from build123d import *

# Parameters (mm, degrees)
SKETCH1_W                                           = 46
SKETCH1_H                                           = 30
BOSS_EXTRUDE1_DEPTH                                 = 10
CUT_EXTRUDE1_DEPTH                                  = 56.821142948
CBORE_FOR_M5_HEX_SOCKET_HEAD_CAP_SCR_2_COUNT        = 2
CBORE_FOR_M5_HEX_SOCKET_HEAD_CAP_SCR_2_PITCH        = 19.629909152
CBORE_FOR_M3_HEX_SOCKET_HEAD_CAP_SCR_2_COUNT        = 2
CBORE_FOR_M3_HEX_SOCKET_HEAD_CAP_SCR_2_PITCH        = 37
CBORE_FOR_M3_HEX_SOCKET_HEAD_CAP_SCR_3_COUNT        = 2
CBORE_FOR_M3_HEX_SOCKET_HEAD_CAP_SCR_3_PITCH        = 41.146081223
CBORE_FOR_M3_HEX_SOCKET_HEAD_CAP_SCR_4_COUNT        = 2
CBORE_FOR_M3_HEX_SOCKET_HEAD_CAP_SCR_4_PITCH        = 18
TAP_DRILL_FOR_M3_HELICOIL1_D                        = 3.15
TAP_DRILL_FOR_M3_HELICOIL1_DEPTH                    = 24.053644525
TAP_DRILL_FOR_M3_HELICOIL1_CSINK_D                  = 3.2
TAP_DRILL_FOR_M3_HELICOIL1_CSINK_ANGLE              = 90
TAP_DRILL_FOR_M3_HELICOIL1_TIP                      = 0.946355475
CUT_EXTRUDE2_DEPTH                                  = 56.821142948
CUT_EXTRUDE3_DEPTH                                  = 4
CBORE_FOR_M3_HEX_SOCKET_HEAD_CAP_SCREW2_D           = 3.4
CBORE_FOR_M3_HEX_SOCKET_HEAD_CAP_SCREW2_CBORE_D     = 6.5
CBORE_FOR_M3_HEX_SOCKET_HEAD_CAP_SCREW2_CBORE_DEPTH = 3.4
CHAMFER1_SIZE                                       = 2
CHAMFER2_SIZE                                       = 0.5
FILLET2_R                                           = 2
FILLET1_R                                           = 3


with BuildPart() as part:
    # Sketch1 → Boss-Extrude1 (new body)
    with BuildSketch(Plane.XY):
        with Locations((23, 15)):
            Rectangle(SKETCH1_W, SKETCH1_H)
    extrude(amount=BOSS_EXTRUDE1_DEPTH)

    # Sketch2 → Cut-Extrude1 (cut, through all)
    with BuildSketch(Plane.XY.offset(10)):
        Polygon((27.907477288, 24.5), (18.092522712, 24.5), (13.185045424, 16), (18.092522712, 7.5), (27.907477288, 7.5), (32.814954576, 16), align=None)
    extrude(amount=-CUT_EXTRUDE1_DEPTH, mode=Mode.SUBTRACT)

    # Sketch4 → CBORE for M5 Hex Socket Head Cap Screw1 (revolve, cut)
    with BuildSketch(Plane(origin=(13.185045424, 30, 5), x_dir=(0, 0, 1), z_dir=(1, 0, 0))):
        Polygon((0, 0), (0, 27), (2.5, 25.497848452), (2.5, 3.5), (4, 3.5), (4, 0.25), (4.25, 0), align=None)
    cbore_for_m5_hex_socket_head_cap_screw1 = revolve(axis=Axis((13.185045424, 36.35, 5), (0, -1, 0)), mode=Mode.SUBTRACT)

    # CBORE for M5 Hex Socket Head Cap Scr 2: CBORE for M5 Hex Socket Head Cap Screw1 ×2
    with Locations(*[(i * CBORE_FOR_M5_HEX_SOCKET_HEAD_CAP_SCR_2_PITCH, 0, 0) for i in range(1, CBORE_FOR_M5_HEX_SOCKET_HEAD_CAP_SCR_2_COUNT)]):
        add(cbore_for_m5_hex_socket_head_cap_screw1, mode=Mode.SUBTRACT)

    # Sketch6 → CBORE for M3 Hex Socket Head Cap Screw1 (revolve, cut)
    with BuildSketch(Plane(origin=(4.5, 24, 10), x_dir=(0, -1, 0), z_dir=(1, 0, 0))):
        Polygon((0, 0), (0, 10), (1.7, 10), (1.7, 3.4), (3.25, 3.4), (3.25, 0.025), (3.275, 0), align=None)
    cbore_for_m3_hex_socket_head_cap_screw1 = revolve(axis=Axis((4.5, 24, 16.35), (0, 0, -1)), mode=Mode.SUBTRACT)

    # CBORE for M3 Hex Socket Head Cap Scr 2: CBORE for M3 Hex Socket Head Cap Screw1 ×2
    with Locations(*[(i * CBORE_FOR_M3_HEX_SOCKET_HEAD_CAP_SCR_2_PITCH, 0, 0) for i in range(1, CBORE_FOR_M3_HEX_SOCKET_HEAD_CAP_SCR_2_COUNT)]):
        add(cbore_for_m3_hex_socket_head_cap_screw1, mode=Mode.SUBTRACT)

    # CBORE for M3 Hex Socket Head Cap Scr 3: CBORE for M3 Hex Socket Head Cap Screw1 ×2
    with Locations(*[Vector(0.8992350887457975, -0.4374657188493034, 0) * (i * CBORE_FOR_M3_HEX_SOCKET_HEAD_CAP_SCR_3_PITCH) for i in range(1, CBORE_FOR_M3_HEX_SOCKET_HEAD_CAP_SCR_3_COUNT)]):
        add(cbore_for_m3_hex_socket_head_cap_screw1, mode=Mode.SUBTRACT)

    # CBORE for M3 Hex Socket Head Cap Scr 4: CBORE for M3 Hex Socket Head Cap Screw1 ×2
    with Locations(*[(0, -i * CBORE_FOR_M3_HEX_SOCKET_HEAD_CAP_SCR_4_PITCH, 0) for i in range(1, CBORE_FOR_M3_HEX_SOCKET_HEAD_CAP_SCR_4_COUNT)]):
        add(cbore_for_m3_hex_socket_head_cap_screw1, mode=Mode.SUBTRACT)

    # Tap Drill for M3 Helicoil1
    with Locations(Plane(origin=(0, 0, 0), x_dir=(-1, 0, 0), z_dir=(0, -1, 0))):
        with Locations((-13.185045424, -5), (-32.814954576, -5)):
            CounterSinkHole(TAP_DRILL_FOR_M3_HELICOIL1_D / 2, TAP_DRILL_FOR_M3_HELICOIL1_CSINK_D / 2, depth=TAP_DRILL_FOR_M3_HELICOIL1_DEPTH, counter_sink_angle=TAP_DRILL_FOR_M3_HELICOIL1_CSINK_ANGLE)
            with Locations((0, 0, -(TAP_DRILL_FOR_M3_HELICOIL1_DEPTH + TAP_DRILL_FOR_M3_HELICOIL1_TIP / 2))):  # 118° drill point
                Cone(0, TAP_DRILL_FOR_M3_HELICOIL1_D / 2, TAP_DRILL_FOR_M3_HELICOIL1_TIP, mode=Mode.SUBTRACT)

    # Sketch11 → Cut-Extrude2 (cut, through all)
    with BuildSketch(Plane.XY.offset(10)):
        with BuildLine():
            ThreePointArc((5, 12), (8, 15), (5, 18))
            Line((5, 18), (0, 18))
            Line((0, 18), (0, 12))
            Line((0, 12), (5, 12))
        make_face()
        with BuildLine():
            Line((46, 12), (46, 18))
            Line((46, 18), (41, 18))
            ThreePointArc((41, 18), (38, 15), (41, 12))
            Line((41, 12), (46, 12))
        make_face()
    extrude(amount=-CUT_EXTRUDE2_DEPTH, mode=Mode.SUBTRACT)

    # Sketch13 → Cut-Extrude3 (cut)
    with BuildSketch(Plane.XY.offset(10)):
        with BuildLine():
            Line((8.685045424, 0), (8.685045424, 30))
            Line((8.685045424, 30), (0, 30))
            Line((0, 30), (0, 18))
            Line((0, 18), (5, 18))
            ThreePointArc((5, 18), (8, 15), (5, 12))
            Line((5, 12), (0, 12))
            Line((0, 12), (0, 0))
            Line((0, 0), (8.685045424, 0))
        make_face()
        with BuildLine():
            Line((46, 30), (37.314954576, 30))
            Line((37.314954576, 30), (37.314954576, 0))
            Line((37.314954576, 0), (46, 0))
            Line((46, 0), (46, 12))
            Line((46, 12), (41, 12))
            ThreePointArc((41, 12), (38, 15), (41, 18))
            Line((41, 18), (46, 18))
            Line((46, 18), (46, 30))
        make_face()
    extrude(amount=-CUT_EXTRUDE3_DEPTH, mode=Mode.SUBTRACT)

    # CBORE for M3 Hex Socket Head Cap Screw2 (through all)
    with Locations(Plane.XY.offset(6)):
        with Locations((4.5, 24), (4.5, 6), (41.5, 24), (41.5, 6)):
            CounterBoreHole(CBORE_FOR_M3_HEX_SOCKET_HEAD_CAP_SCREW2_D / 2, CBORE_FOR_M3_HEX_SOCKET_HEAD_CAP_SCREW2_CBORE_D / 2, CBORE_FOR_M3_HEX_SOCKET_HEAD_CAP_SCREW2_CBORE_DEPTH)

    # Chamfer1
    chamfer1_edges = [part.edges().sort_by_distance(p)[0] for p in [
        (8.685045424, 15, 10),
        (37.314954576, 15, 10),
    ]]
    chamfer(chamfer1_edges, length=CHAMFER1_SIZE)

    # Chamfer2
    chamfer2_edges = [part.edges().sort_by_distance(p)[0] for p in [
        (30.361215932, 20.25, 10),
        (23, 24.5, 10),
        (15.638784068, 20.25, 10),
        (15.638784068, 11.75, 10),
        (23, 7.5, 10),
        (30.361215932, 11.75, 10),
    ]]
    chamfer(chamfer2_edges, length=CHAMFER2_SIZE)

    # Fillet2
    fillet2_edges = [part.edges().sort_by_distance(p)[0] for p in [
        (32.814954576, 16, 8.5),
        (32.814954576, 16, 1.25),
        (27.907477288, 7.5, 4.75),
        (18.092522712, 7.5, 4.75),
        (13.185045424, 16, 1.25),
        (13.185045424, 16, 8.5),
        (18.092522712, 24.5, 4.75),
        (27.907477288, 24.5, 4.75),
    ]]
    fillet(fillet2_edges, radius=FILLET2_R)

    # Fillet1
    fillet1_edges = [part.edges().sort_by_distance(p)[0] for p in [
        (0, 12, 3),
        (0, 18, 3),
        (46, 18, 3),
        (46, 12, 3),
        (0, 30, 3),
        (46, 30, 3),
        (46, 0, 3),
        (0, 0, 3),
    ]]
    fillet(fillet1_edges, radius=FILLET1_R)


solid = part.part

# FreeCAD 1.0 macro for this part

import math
import FreeCAD as App
import Part
import Sketcher

V = App.Vector
Q = App.Units.Quantity


def edges_at(feature, points):
    """Names of the edges that pass closest to the given points."""
    edges = feature.Shape.Edges
    near = lambda p: min(range(len(edges)), key=lambda i: edges[i].distToShape(Part.Vertex(*p))[0])
    return sorted({f"Edge{near(p) + 1}" for p in points})


def add_polygon(sketch, points):
    """Adds a closed chain of lines whose ends are joined by coincident constraints."""
    first, n = sketch.GeometryCount, len(points)
    for a, b in zip(points, points[1:] + points[:1]):
        sketch.addGeometry(Part.LineSegment(App.Vector(*a, 0), App.Vector(*b, 0)), False)
    for i in range(n):
        sketch.addConstraint(Sketcher.Constraint("Coincident", first + i, 2, first + (i + 1) % n, 1))

doc = App.newDocument("Part")
body = doc.addObject("PartDesign::Body", "Body")

sketch1 = body.newObject("Sketcher::SketchObject", "Sketch")
sketch1.AttachmentSupport = (doc.getObject("XY_Plane"), [""])
sketch1.MapMode = "FlatFace"
add_polygon(sketch1, [(0, 30), (0, 0), (46, 0), (46, 30)])
sketch1.addConstraint([
    Sketcher.Constraint("Vertical", 0),
    Sketcher.Constraint("Horizontal", 1),
    Sketcher.Constraint("Vertical", 2),
    Sketcher.Constraint("Horizontal", 3),
    Sketcher.Constraint("Coincident", 0, 2, -1, 1),
    Sketcher.Constraint("DistanceX", 1, 1, 1, 2, Q("46 mm")),
    Sketcher.Constraint("DistanceY", 0, 2, 0, 1, Q("30 mm")),
])
pad1 = body.newObject("PartDesign::Pad", "Pad")
pad1.Profile = sketch1
pad1.Length = 10

sketch2 = body.newObject("Sketcher::SketchObject", "Sketch001")
sketch2.AttachmentSupport = (doc.getObject("XY_Plane"), [""])
sketch2.MapMode = "FlatFace"
sketch2.AttachmentOffset = App.Placement(V(0, 0, 10), App.Rotation())
add_polygon(sketch2, [(28, 24), (18, 24), (13, 16), (18, 8), (28, 8), (33, 16)])
sketch2.addConstraint([
    Sketcher.Constraint("Horizontal", 0),
    Sketcher.Constraint("Horizontal", 3),
    Sketcher.Constraint("Parallel", 1, 4),
    Sketcher.Constraint("Parallel", 2, 5),
    Sketcher.Constraint("Horizontal", 1, 2, 4, 2),
    Sketcher.Constraint("Vertical", 0, 2, 2, 2),
    Sketcher.Constraint("Vertical", 3, 2, 5, 2),
    Sketcher.Constraint("Angle", 1, Q("-120 deg")),
    Sketcher.Constraint("DistanceY", -1, 1, 1, 2, Q("16 mm")),
    Sketcher.Constraint("DistanceY", 2, 2, 0, 2, Q("17 mm")),
    Sketcher.Constraint("DistanceX", 0, 2, 0, 1, Q("9.814955 mm")),
    Sketcher.Constraint("DistanceX", -1, 1, 0, 2, Q("18.092523 mm")),
])
pocket1 = body.newObject("PartDesign::Pocket", "Pocket")
pocket1.Profile = sketch2
pocket1.Type = "ThroughAll"

sketch3 = body.newObject("Sketcher::SketchObject", "Sketch002")
sketch3.AttachmentSupport = (doc.getObject("YZ_Plane"), [""])
sketch3.MapMode = "FlatFace"
sketch3.AttachmentOffset = App.Placement(V(0, 0, 13.185045), App.Rotation())
add_polygon(sketch3, [(3, 5), (30, 5), (30, 9.25), (29.75, 9), (26.5, 9), (26.5, 7.5), (4.5, 7.5)])
sketch3.addGeometry(Part.LineSegment(V(30, 5, 0), V(3, 5, 0)), True)
sketch3.addConstraint([
    Sketcher.Constraint("Horizontal", 0),
    Sketcher.Constraint("Vertical", 1),
    Sketcher.Constraint("Horizontal", 3),
    Sketcher.Constraint("Vertical", 4),
    Sketcher.Constraint("Horizontal", 5),
    Sketcher.Constraint("Horizontal", 7),
    Sketcher.Constraint("Coincident", 7, 1, 0, 2),
    Sketcher.Constraint("Equal", 0, 7),
    Sketcher.Constraint("DistanceX", 0, 1, 0, 2, Q("27 mm")),
    Sketcher.Constraint("Angle", 2, Q("-135 deg")),
    Sketcher.Constraint("Angle", 6, Q("-121 deg")),
    Sketcher.Constraint("DistanceY", 4, 2, 4, 1, Q("1.5 mm")),
    Sketcher.Constraint("DistanceX", -1, 1, 0, 2, Q("30 mm")),
    Sketcher.Constraint("DistanceY", -1, 1, 0, 2, Q("5 mm")),
    Sketcher.Constraint("DistanceY", -1, 1, 2, 2, Q("9 mm")),
    Sketcher.Constraint("DistanceX", 3, 2, 3, 1, Q("3.25 mm")),
    Sketcher.Constraint("DistanceY", 1, 1, 1, 2, Q("4.25 mm")),
])
groove = body.newObject("PartDesign::Groove", "Groove")
groove.Profile = sketch3
groove.ReferenceAxis = (sketch3, ["Axis0"])
groove.Angle = 360
doc.recompute()

linearpattern = body.newObject("PartDesign::LinearPattern", "LinearPattern")
linearpattern.Originals = [groove]
linearpattern.Direction = (doc.getObject("X_Axis"), [""])
linearpattern.Mode = "offset"
linearpattern.Offset = 19.629909
linearpattern.Occurrences = 2
body.Tip = linearpattern

sketch4 = body.newObject("Sketcher::SketchObject", "Sketch003")
sketch4.AttachmentSupport = (doc.getObject("YZ_Plane"), [""])
sketch4.MapMode = "FlatFace"
sketch4.AttachmentOffset = App.Placement(V(0, 0, 4.5), App.Rotation())
add_polygon(sketch4, [(24, 0), (24, 10), (20.725, 10), (20.75, 9.975), (20.75, 6.6), (22.3, 6.6), (22.3, 0)])
sketch4.addGeometry(Part.LineSegment(V(24, 10, 0), V(24, 0, 0)), True)
sketch4.addConstraint([
    Sketcher.Constraint("Vertical", 0),
    Sketcher.Constraint("Horizontal", 1),
    Sketcher.Constraint("Vertical", 3),
    Sketcher.Constraint("Horizontal", 4),
    Sketcher.Constraint("Vertical", 5),
    Sketcher.Constraint("Horizontal", 6),
    Sketcher.Constraint("Vertical", 7),
    Sketcher.Constraint("Coincident", 7, 1, 0, 2),
    Sketcher.Constraint("PointOnObject", 5, 2, -1),
    Sketcher.Constraint("PointOnObject", 7, 2, -1),
    Sketcher.Constraint("DistanceY", 0, 1, 0, 2, Q("10 mm")),
    Sketcher.Constraint("Angle", 2, Q("-45 deg")),
    Sketcher.Constraint("DistanceX", 6, 1, 6, 2, Q("1.7 mm")),
    Sketcher.Constraint("DistanceY", 5, 2, 5, 1, Q("6.6 mm")),
    Sketcher.Constraint("DistanceX", -1, 1, 0, 2, Q("24 mm")),
    Sketcher.Constraint("DistanceX", 4, 1, 4, 2, Q("1.55 mm")),
    Sketcher.Constraint("DistanceX", 1, 2, 1, 1, Q("3.275 mm")),
])
groove2 = body.newObject("PartDesign::Groove", "Groove001")
groove2.Profile = sketch4
groove2.ReferenceAxis = (sketch4, ["Axis0"])
groove2.Angle = 360
doc.recompute()

linearpattern2 = body.newObject("PartDesign::LinearPattern", "LinearPattern001")
linearpattern2.Originals = [groove2]
linearpattern2.Direction = (doc.getObject("X_Axis"), [""])
linearpattern2.Mode = "offset"
linearpattern2.Offset = 37
linearpattern2.Occurrences = 2
body.Tip = linearpattern2
doc.recompute()

datumline = body.newObject("PartDesign::Line", "DatumLine")
datumline.Placement = App.Placement(V(0, 0, 0), App.Rotation(V(0, 0, 1), V(0.899235089, -0.437465719, 0)))
linearpattern3 = body.newObject("PartDesign::LinearPattern", "LinearPattern002")
linearpattern3.Originals = [groove2]
linearpattern3.Direction = (datumline, [""])
linearpattern3.Mode = "offset"
linearpattern3.Offset = 41.146081
linearpattern3.Occurrences = 2
body.Tip = linearpattern3
doc.recompute()

linearpattern4 = body.newObject("PartDesign::LinearPattern", "LinearPattern003")
linearpattern4.Originals = [groove2]
linearpattern4.Direction = (doc.getObject("Y_Axis"), [""])
linearpattern4.Mode = "offset"
linearpattern4.Offset = 18
linearpattern4.Occurrences = 2
linearpattern4.Reversed = True
body.Tip = linearpattern4

sketch5 = body.newObject("Sketcher::SketchObject", "Sketch004")
sketch5.AttachmentSupport = (doc.getObject("XZ_Plane"), [""])
sketch5.MapMode = "FlatFace"
sketch5.addGeometry([
    Part.Circle(V(13.2, 5, 0), V(0, 0, 1), 1.6),
    Part.Circle(V(32.8, 5, 0), V(0, 0, 1), 1.6),
], False)
sketch5.addConstraint([
    Sketcher.Constraint("Equal", 0, 1),
    Sketcher.Constraint("Horizontal", 0, 3, 1, 3),
    Sketcher.Constraint("Diameter", 0, Q("3.15 mm")),
    Sketcher.Constraint("DistanceY", -1, 1, 0, 3, Q("5 mm")),
    Sketcher.Constraint("DistanceX", 0, 3, 1, 3, Q("19.629909 mm")),
    Sketcher.Constraint("DistanceX", -1, 1, 0, 3, Q("13.185045 mm")),
])
doc.recompute()
hole = body.newObject("PartDesign::Hole", "Hole")
hole.Profile = sketch5
hole.ThreadType = "None"
hole.Diameter = 3.15
hole.DepthType = "Dimension"
hole.Depth = 24.053645
hole.DrillPoint = "Angled"
hole.DrillPointAngle = 118
hole.HoleCutType = "Countersink"
hole.HoleCutDiameter = 3.2
hole.HoleCutCountersinkAngle = 90

sketch6 = body.newObject("Sketcher::SketchObject", "Sketch005")
sketch6.AttachmentSupport = (doc.getObject("XY_Plane"), [""])
sketch6.MapMode = "FlatFace"
sketch6.AttachmentOffset = App.Placement(V(0, 0, 10), App.Rotation())
sketch6.addGeometry([
    Part.ArcOfCircle(Part.Circle(V(5, 15, 0), V(0, 0, 1), 3), math.radians(-90), math.radians(90)),
    Part.LineSegment(V(5, 18, 0), V(0, 18, 0)),
    Part.LineSegment(V(0, 18, 0), V(0, 12, 0)),
    Part.LineSegment(V(0, 12, 0), V(5, 12, 0)),
    Part.LineSegment(V(46, 12, 0), V(46, 18, 0)),
    Part.LineSegment(V(46, 18, 0), V(41, 18, 0)),
    Part.ArcOfCircle(Part.Circle(V(41, 15, 0), V(0, 0, 1), 3), math.radians(90), math.radians(270)),
    Part.LineSegment(V(41, 12, 0), V(46, 12, 0)),
], False)
sketch6.addConstraint([
    Sketcher.Constraint("Tangent", 0, 2, 1, 1),
    Sketcher.Constraint("Coincident", 1, 2, 2, 1),
    Sketcher.Constraint("Coincident", 2, 2, 3, 1),
    Sketcher.Constraint("Tangent", 3, 2, 0, 1),
    Sketcher.Constraint("Coincident", 4, 2, 5, 1),
    Sketcher.Constraint("Tangent", 5, 2, 6, 1),
    Sketcher.Constraint("Tangent", 6, 2, 7, 1),
    Sketcher.Constraint("Coincident", 7, 2, 4, 1),
    Sketcher.Constraint("Horizontal", 1),
    Sketcher.Constraint("Vertical", 2),
    Sketcher.Constraint("Horizontal", 3),
    Sketcher.Constraint("Vertical", 4),
    Sketcher.Constraint("Horizontal", 5),
    Sketcher.Constraint("Horizontal", 7),
    Sketcher.Constraint("Equal", 0, 6),
    Sketcher.Constraint("PointOnObject", 1, 2, -2),
    Sketcher.Constraint("Horizontal", 0, 3, 6, 3),
    Sketcher.Constraint("Equal", 3, 5),
    Sketcher.Constraint("Radius", 0, Q("3 mm")),
    Sketcher.Constraint("DistanceX", 1, 2, 1, 1, Q("5 mm")),
    Sketcher.Constraint("DistanceY", -1, 1, 0, 3, Q("15 mm")),
    Sketcher.Constraint("DistanceX", -1, 1, 6, 3, Q("41 mm")),
])
pocket2 = body.newObject("PartDesign::Pocket", "Pocket001")
pocket2.Profile = sketch6
pocket2.Type = "ThroughAll"

sketch7 = body.newObject("Sketcher::SketchObject", "Sketch006")
sketch7.AttachmentSupport = (doc.getObject("XY_Plane"), [""])
sketch7.MapMode = "FlatFace"
sketch7.AttachmentOffset = App.Placement(V(0, 0, 10), App.Rotation())
sketch7.addGeometry([
    Part.LineSegment(V(8.7, 0, 0), V(8.7, 30, 0)),
    Part.LineSegment(V(8.7, 30, 0), V(0, 30, 0)),
    Part.LineSegment(V(0, 30, 0), V(0, 18, 0)),
    Part.LineSegment(V(0, 18, 0), V(5, 18, 0)),
    Part.ArcOfCircle(Part.Circle(V(5, 15, 0), V(0, 0, 1), 3), math.radians(-90), math.radians(90)),
    Part.LineSegment(V(5, 12, 0), V(0, 12, 0)),
    Part.LineSegment(V(0, 12, 0), V(0, 0, 0)),
    Part.LineSegment(V(0, 0, 0), V(8.7, 0, 0)),
    Part.LineSegment(V(46, 30, 0), V(37.3, 30, 0)),
    Part.LineSegment(V(37.3, 30, 0), V(37.3, 0, 0)),
    Part.LineSegment(V(37.3, 0, 0), V(46, 0, 0)),
    Part.LineSegment(V(46, 0, 0), V(46, 12, 0)),
    Part.LineSegment(V(46, 12, 0), V(41, 12, 0)),
    Part.ArcOfCircle(Part.Circle(V(41, 15, 0), V(0, 0, 1), 3), math.radians(90), math.radians(270)),
    Part.LineSegment(V(41, 18, 0), V(46, 18, 0)),
    Part.LineSegment(V(46, 18, 0), V(46, 30, 0)),
], False)
sketch7.addConstraint([
    Sketcher.Constraint("Coincident", 0, 2, 1, 1),
    Sketcher.Constraint("Coincident", 1, 2, 2, 1),
    Sketcher.Constraint("Coincident", 2, 2, 3, 1),
    Sketcher.Constraint("Tangent", 3, 2, 4, 2),
    Sketcher.Constraint("Tangent", 4, 1, 5, 1),
    Sketcher.Constraint("Coincident", 5, 2, 6, 1),
    Sketcher.Constraint("Coincident", 6, 2, 7, 1),
    Sketcher.Constraint("Coincident", 7, 2, 0, 1),
    Sketcher.Constraint("Coincident", 8, 2, 9, 1),
    Sketcher.Constraint("Coincident", 9, 2, 10, 1),
    Sketcher.Constraint("Coincident", 10, 2, 11, 1),
    Sketcher.Constraint("Coincident", 11, 2, 12, 1),
    Sketcher.Constraint("Tangent", 12, 2, 13, 2),
    Sketcher.Constraint("Tangent", 13, 1, 14, 1),
    Sketcher.Constraint("Coincident", 14, 2, 15, 1),
    Sketcher.Constraint("Coincident", 15, 2, 8, 1),
    Sketcher.Constraint("Vertical", 0),
    Sketcher.Constraint("Horizontal", 1),
    Sketcher.Constraint("Vertical", 2),
    Sketcher.Constraint("Horizontal", 3),
    Sketcher.Constraint("Horizontal", 5),
    Sketcher.Constraint("Vertical", 6),
    Sketcher.Constraint("Horizontal", 7),
    Sketcher.Constraint("Horizontal", 8),
    Sketcher.Constraint("Vertical", 9),
    Sketcher.Constraint("Horizontal", 10),
    Sketcher.Constraint("Vertical", 11),
    Sketcher.Constraint("Horizontal", 12),
    Sketcher.Constraint("Horizontal", 14),
    Sketcher.Constraint("Vertical", 15),
    Sketcher.Constraint("Coincident", 6, 2, -1, 1),
    Sketcher.Constraint("Equal", 4, 13),
    Sketcher.Constraint("PointOnObject", 1, 2, -2),
    Sketcher.Constraint("PointOnObject", 9, 2, -1),
    Sketcher.Constraint("Horizontal", 4, 3, 13, 3),
    Sketcher.Constraint("Horizontal", 1, 2, 8, 2),
    Sketcher.Constraint("Vertical", 11, 2, 14, 2),
    Sketcher.Constraint("Equal", 7, 8),
    Sketcher.Constraint("Equal", 5, 12),
    Sketcher.Constraint("Equal", 2, 6),
    Sketcher.Constraint("Radius", 4, Q("3 mm")),
    Sketcher.Constraint("DistanceX", 3, 1, 3, 2, Q("5 mm")),
    Sketcher.Constraint("DistanceY", 0, 1, 0, 2, Q("30 mm")),
    Sketcher.Constraint("DistanceX", -1, 1, 13, 3, Q("41 mm")),
    Sketcher.Constraint("DistanceX", 1, 2, 1, 1, Q("8.685045 mm")),
])
pocket3 = body.newObject("PartDesign::Pocket", "Pocket002")
pocket3.Profile = sketch7
pocket3.Length = 4

sketch8 = body.newObject("Sketcher::SketchObject", "Sketch007")
sketch8.AttachmentSupport = (doc.getObject("XY_Plane"), [""])
sketch8.MapMode = "FlatFace"
sketch8.AttachmentOffset = App.Placement(V(0, 0, 6), App.Rotation())
sketch8.addGeometry([
    Part.Circle(V(4.5, 24, 0), V(0, 0, 1), 1.7),
    Part.Circle(V(4.5, 6, 0), V(0, 0, 1), 1.7),
    Part.Circle(V(41.5, 24, 0), V(0, 0, 1), 1.7),
    Part.Circle(V(41.5, 6, 0), V(0, 0, 1), 1.7),
], False)
sketch8.addConstraint([
    Sketcher.Constraint("Equal", 0, 1),
    Sketcher.Constraint("Equal", 1, 2),
    Sketcher.Constraint("Equal", 2, 3),
    Sketcher.Constraint("Horizontal", 0, 3, 2, 3),
    Sketcher.Constraint("Horizontal", 1, 3, 3, 3),
    Sketcher.Constraint("Vertical", 0, 3, 1, 3),
    Sketcher.Constraint("Vertical", 2, 3, 3, 3),
    Sketcher.Constraint("Diameter", 0, Q("3.4 mm")),
    Sketcher.Constraint("DistanceY", -1, 1, 0, 3, Q("24 mm")),
    Sketcher.Constraint("DistanceY", -1, 1, 1, 3, Q("6 mm")),
    Sketcher.Constraint("DistanceX", 0, 3, 2, 3, Q("37 mm")),
    Sketcher.Constraint("DistanceX", -1, 1, 0, 3, Q("4.5 mm")),
])
doc.recompute()
hole2 = body.newObject("PartDesign::Hole", "Hole001")
hole2.Profile = sketch8
hole2.ThreadType = "None"
hole2.Diameter = 3.4
hole2.DepthType = "ThroughAll"
hole2.HoleCutType = "Counterbore"
hole2.HoleCutDiameter = 6.5
hole2.HoleCutDepth = 3.4
doc.recompute()

chamfer = body.newObject("PartDesign::Chamfer", "Chamfer")
chamfer.Base = (hole2, edges_at(hole2, [(8.685, 15, 10), (37.315, 15, 10)]))
chamfer.Size = 2
doc.recompute()

chamfer2 = body.newObject("PartDesign::Chamfer", "Chamfer001")
chamfer2.Base = (chamfer, edges_at(chamfer, [
    (30.361, 20.25, 10),
    (23, 24.5, 10),
    (15.639, 20.25, 10),
    (15.639, 11.75, 10),
    (23, 7.5, 10),
    (30.361, 11.75, 10),
]))
chamfer2.Size = 0.5
doc.recompute()

fillet = body.newObject("PartDesign::Fillet", "Fillet")
fillet.Base = (chamfer2, edges_at(chamfer2, [
    (32.815, 16, 8.5),
    (32.815, 16, 1.25),
    (27.907, 7.5, 4.75),
    (18.093, 7.5, 4.75),
    (13.185, 16, 1.25),
    (13.185, 16, 8.5),
    (18.093, 24.5, 4.75),
    (27.907, 24.5, 4.75),
]))
fillet.Radius = 2
doc.recompute()

fillet2 = body.newObject("PartDesign::Fillet", "Fillet001")
fillet2.Base = (fillet, edges_at(fillet, [
    (0, 12, 3),
    (0, 18, 3),
    (46, 18, 3),
    (46, 12, 3),
    (0, 30, 3),
    (46, 30, 3),
    (46, 0, 3),
    (0, 0, 3),
]))
fillet2.Radius = 3

doc.recompute()
